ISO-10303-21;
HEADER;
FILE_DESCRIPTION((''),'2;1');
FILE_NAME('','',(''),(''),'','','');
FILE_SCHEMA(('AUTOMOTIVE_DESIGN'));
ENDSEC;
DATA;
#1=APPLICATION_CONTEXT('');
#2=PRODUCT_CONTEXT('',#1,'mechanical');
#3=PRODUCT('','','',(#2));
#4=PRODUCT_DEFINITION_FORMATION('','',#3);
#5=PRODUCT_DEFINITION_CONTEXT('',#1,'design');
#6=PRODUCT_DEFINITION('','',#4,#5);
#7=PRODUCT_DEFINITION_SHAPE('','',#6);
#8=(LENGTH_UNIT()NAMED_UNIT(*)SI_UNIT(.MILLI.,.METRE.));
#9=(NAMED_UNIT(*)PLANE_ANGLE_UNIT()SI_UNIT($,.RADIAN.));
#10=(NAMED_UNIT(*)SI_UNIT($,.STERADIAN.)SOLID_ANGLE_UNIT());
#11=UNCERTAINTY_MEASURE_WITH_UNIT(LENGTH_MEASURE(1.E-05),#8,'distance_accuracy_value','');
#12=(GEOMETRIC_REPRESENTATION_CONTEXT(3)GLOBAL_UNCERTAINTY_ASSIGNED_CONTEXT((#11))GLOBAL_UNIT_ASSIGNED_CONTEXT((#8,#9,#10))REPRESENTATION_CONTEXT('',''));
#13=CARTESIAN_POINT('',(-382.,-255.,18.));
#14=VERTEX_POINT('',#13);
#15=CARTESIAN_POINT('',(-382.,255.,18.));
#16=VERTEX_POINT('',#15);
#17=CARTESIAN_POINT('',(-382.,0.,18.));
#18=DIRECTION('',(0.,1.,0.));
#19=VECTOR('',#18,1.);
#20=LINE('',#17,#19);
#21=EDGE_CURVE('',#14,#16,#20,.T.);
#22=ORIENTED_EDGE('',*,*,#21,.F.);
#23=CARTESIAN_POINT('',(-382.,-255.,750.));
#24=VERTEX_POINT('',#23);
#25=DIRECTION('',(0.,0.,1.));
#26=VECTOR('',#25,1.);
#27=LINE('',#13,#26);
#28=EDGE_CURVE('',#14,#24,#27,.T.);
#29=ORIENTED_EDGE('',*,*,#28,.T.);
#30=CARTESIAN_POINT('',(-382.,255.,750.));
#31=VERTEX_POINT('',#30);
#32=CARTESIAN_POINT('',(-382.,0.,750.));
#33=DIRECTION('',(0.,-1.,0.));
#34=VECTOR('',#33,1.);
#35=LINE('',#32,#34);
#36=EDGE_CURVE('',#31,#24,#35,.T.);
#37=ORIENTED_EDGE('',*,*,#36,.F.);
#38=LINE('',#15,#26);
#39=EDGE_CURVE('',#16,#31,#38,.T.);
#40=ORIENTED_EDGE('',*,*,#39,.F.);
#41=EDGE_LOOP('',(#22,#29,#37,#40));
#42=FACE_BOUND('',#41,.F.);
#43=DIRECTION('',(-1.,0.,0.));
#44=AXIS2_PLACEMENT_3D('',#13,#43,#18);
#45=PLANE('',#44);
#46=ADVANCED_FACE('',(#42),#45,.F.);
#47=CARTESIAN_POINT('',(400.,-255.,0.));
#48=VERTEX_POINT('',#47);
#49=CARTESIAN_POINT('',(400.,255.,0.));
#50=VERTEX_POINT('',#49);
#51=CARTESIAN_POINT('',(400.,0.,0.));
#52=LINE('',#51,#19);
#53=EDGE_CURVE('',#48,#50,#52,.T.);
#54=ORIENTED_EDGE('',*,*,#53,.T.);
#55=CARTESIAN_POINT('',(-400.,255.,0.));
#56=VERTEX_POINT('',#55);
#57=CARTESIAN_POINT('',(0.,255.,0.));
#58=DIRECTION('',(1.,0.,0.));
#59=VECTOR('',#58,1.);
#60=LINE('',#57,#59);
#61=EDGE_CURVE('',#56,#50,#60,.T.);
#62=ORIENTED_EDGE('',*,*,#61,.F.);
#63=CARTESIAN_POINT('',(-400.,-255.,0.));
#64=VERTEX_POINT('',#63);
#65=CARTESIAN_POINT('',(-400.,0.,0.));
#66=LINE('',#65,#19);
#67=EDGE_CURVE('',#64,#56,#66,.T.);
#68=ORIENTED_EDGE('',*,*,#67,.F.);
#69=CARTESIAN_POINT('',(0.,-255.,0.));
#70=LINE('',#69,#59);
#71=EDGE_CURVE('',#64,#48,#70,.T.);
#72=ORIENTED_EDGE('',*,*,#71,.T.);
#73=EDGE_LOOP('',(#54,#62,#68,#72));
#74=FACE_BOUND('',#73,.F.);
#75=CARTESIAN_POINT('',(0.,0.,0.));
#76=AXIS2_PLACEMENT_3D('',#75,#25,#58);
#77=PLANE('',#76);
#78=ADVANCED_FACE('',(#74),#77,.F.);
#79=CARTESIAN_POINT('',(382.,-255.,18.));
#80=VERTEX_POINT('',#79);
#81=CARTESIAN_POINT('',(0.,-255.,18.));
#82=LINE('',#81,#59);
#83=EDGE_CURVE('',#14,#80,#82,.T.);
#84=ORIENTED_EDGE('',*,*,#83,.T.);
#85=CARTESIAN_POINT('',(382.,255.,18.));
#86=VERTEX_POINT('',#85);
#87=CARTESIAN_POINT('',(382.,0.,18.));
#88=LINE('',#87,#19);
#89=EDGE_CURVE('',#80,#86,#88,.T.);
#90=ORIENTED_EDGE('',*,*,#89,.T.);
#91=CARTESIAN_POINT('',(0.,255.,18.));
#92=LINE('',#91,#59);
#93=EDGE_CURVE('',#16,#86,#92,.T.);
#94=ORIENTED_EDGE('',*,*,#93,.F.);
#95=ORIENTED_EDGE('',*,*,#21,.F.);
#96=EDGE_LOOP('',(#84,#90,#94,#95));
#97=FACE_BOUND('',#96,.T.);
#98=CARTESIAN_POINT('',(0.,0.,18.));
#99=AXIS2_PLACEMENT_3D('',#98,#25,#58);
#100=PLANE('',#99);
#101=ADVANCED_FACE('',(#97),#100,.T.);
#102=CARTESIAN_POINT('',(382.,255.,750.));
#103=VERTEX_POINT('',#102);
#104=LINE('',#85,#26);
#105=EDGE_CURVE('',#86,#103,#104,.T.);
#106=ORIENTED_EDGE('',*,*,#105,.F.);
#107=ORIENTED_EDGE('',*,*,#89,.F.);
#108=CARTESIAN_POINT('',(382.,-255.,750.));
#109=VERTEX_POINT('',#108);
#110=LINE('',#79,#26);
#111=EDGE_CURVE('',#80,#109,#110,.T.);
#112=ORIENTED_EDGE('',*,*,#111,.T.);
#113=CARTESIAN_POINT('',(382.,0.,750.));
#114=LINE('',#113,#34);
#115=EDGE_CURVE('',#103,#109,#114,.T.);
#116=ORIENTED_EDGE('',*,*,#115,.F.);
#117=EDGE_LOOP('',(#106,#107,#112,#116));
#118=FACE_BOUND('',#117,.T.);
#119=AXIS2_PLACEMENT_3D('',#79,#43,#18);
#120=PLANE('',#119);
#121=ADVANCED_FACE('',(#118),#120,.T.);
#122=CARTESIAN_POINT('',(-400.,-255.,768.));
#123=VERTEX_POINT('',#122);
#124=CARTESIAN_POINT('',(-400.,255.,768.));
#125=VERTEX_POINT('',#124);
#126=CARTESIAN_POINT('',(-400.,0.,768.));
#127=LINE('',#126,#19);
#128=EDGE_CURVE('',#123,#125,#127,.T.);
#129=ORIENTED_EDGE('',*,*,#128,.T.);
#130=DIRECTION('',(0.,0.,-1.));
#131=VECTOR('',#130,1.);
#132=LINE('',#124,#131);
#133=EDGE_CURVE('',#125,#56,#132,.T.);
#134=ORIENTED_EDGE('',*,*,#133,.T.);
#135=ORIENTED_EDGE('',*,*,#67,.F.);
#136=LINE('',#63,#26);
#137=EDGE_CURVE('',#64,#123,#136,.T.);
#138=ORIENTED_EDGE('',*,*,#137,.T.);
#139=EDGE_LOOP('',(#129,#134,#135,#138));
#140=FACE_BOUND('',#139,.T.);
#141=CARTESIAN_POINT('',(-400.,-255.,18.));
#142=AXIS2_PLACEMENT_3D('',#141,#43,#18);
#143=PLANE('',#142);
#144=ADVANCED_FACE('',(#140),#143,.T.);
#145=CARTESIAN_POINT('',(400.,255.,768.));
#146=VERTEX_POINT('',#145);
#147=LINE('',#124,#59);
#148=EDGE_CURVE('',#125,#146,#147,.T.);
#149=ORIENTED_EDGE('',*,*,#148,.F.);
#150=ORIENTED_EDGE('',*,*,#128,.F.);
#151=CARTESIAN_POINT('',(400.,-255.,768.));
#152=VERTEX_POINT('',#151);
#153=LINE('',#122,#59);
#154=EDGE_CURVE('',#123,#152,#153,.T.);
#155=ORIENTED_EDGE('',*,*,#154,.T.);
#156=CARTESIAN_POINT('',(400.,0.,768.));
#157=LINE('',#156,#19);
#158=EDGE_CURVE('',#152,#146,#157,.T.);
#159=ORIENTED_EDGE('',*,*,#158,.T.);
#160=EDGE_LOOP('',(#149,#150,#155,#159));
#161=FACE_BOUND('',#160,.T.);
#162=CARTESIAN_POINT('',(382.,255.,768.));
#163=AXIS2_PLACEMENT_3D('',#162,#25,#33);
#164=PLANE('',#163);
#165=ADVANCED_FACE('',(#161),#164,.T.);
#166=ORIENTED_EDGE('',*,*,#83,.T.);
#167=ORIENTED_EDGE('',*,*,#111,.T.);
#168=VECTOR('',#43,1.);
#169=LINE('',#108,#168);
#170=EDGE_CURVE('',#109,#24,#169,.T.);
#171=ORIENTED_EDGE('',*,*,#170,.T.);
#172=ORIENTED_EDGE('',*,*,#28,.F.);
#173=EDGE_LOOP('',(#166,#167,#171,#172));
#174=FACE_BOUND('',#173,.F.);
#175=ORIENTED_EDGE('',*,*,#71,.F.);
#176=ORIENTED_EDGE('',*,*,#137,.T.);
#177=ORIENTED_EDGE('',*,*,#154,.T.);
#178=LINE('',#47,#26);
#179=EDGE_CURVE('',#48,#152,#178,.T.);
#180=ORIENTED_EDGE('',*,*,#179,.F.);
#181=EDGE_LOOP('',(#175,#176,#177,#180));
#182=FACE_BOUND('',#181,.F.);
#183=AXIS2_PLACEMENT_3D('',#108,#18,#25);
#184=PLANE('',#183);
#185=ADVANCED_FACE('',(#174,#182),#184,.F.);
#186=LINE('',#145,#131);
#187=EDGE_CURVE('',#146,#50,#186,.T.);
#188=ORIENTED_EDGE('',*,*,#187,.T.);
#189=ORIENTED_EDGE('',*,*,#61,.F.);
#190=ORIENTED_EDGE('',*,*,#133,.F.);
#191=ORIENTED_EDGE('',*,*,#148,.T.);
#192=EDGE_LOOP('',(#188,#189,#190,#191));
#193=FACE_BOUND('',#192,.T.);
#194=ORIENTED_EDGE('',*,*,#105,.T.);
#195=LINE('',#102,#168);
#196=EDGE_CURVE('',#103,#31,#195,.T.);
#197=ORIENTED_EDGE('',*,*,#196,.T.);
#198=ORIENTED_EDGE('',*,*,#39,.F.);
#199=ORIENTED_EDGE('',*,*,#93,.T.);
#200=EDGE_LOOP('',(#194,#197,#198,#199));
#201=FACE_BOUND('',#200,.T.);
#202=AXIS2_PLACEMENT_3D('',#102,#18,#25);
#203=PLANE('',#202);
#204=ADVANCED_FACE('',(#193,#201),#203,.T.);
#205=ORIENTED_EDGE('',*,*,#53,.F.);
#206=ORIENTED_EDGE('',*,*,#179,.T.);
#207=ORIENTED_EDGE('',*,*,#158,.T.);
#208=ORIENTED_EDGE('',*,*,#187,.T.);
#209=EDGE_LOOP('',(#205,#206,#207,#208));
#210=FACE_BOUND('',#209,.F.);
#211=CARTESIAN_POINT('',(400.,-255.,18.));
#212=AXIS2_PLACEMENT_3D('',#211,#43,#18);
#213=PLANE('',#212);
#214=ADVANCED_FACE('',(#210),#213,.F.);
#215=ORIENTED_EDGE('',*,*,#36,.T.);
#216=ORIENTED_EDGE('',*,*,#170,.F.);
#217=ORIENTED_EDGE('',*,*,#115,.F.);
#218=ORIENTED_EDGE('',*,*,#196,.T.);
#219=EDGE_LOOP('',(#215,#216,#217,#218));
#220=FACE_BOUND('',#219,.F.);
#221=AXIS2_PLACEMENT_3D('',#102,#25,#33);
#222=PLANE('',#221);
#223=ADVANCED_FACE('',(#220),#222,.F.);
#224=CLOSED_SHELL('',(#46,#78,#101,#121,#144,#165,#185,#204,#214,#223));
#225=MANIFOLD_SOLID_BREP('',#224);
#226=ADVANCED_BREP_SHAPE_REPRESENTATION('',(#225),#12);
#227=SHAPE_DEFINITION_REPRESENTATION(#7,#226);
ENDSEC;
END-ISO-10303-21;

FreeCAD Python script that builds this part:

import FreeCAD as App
import Part
import Sketcher
from FreeCAD import Vector

doc = App.newDocument("Part")
body = doc.addObject("PartDesign::Body", "Body")

# Sketch on XY plane
sketch1 = body.newObject("Sketcher::SketchObject", "Sketch")
sketch1.AttachmentSupport = (doc.getObject("XY_Plane"), [""])
sketch1.MapMode = "FlatFace"
sketch1.addGeometry(Part.LineSegment(Vector(-400, 255, 0), Vector(-400, -255, 0)), False)
sketch1.addGeometry(Part.LineSegment(Vector(-400, -255, 0), Vector(400, -255, 0)), False)
sketch1.addGeometry(Part.LineSegment(Vector(400, -255, 0), Vector(400, 255, 0)), False)
sketch1.addGeometry(Part.LineSegment(Vector(400, 255, 0), Vector(-400, 255, 0)), False)
sketch1.addConstraint(Sketcher.Constraint("Coincident", 0, 2, 1, 1))
sketch1.addConstraint(Sketcher.Constraint("Coincident", 1, 2, 2, 1))
sketch1.addConstraint(Sketcher.Constraint("Coincident", 2, 2, 3, 1))
sketch1.addConstraint(Sketcher.Constraint("Coincident", 3, 2, 0, 1))
sketch1.addConstraint(Sketcher.Constraint("Vertical", 0))
sketch1.addConstraint(Sketcher.Constraint("Horizontal", 1))
sketch1.addConstraint(Sketcher.Constraint("Vertical", 2))
sketch1.addConstraint(Sketcher.Constraint("Horizontal", 3))
sketch1.addConstraint(Sketcher.Constraint("Symmetric", 0, 2, 2, 2, -1, 1))
sketch1.addConstraint(Sketcher.Constraint("DistanceX", 1, 1, 1, 2, 800.0))
sketch1.addConstraint(Sketcher.Constraint("DistanceY", 0, 2, 0, 1, 510.0))
pad1 = body.newObject("PartDesign::Pad", "Pad")
pad1.Profile = sketch1
pad1.Length = 18

# Sketch on XY plane
sketch2 = body.newObject("Sketcher::SketchObject", "Sketch001")
sketch2.AttachmentSupport = (doc.getObject("XY_Plane"), [""])
sketch2.MapMode = "FlatFace"
sketch2.AttachmentOffset = App.Placement(Vector(0, 0, 18), App.Rotation())
sketch2.addGeometry(Part.LineSegment(Vector(-400, 255, 0), Vector(-400, -255, 0)), False)
sketch2.addGeometry(Part.LineSegment(Vector(-400, -255, 0), Vector(-382, -255, 0)), False)
sketch2.addGeometry(Part.LineSegment(Vector(-382, -255, 0), Vector(-382, 255, 0)), False)
sketch2.addGeometry(Part.LineSegment(Vector(-382, 255, 0), Vector(-400, 255, 0)), False)
sketch2.addConstraint(Sketcher.Constraint("Coincident", 0, 2, 1, 1))
sketch2.addConstraint(Sketcher.Constraint("Coincident", 1, 2, 2, 1))
sketch2.addConstraint(Sketcher.Constraint("Coincident", 2, 2, 3, 1))
sketch2.addConstraint(Sketcher.Constraint("Coincident", 3, 2, 0, 1))
sketch2.addConstraint(Sketcher.Constraint("Vertical", 0))
sketch2.addConstraint(Sketcher.Constraint("Horizontal", 1))
sketch2.addConstraint(Sketcher.Constraint("Vertical", 2))
sketch2.addConstraint(Sketcher.Constraint("Horizontal", 3))
sketch2.addConstraint(Sketcher.Constraint("DistanceX", 1, 1, 1, 2, 18.0))
sketch2.addConstraint(Sketcher.Constraint("DistanceY", 0, 2, 0, 1, 510.0))
sketch2.addConstraint(Sketcher.Constraint("DistanceX", 0, 2, -1, 1, 400.0))
sketch2.addConstraint(Sketcher.Constraint("DistanceY", 0, 2, -1, 1, 255.0))
pad2 = body.newObject("PartDesign::Pad", "Pad001")
pad2.Profile = sketch2
pad2.Length = 750

# Sketch on XY plane
sketch3 = body.newObject("Sketcher::SketchObject", "Sketch002")
sketch3.AttachmentSupport = (doc.getObject("XY_Plane"), [""])
sketch3.MapMode = "FlatFace"
sketch3.AttachmentOffset = App.Placement(Vector(0, 0, 18), App.Rotation())
sketch3.addGeometry(Part.LineSegment(Vector(382, 255, 0), Vector(382, -255, 0)), False)
sketch3.addGeometry(Part.LineSegment(Vector(382, -255, 0), Vector(400, -255, 0)), False)
sketch3.addGeometry(Part.LineSegment(Vector(400, -255, 0), Vector(400, 255, 0)), False)
sketch3.addGeometry(Part.LineSegment(Vector(400, 255, 0), Vector(382, 255, 0)), False)
sketch3.addConstraint(Sketcher.Constraint("Coincident", 0, 2, 1, 1))
sketch3.addConstraint(Sketcher.Constraint("Coincident", 1, 2, 2, 1))
sketch3.addConstraint(Sketcher.Constraint("Coincident", 2, 2, 3, 1))
sketch3.addConstraint(Sketcher.Constraint("Coincident", 3, 2, 0, 1))
sketch3.addConstraint(Sketcher.Constraint("Vertical", 0))
sketch3.addConstraint(Sketcher.Constraint("Horizontal", 1))
sketch3.addConstraint(Sketcher.Constraint("Vertical", 2))
sketch3.addConstraint(Sketcher.Constraint("Horizontal", 3))
sketch3.addConstraint(Sketcher.Constraint("DistanceX", 1, 1, 1, 2, 18.0))
sketch3.addConstraint(Sketcher.Constraint("DistanceY", 0, 2, 0, 1, 510.0))
sketch3.addConstraint(Sketcher.Constraint("DistanceX", -1, 1, 0, 2, 382.0))
sketch3.addConstraint(Sketcher.Constraint("DistanceY", 0, 2, -1, 1, 255.0))
pad3 = body.newObject("PartDesign::Pad", "Pad002")
pad3.Profile = sketch3
pad3.Length = 750

# Sketch on YZ plane
sketch4 = body.newObject("Sketcher::SketchObject", "Sketch003")
sketch4.AttachmentSupport = (doc.getObject("YZ_Plane"), [""])
sketch4.MapMode = "FlatFace"
sketch4.AttachmentOffset = App.Placement(Vector(0, 0, 382), App.Rotation())
sketch4.addGeometry(Part.LineSegment(Vector(255, 768, 0), Vector(255, 750, 0)), False)
sketch4.addGeometry(Part.LineSegment(Vector(255, 750, 0), Vector(-255, 750, 0)), False)
sketch4.addGeometry(Part.LineSegment(Vector(-255, 750, 0), Vector(-255, 768, 0)), False)
sketch4.addGeometry(Part.LineSegment(Vector(-255, 768, 0), Vector(255, 768, 0)), False)
sketch4.addConstraint(Sketcher.Constraint("Coincident", 0, 2, 1, 1))
sketch4.addConstraint(Sketcher.Constraint("Coincident", 1, 2, 2, 1))
sketch4.addConstraint(Sketcher.Constraint("Coincident", 2, 2, 3, 1))
sketch4.addConstraint(Sketcher.Constraint("Coincident", 3, 2, 0, 1))
sketch4.addConstraint(Sketcher.Constraint("Vertical", 0))
sketch4.addConstraint(Sketcher.Constraint("Horizontal", 1))
sketch4.addConstraint(Sketcher.Constraint("Vertical", 2))
sketch4.addConstraint(Sketcher.Constraint("Horizontal", 3))
sketch4.addConstraint(Sketcher.Constraint("DistanceX", 1, 2, 1, 1, 510.0))
sketch4.addConstraint(Sketcher.Constraint("DistanceY", 0, 2, 0, 1, 18.0))
sketch4.addConstraint(Sketcher.Constraint("DistanceX", -1, 1, 0, 2, 255.0))
sketch4.addConstraint(Sketcher.Constraint("DistanceY", -1, 1, 0, 2, 750.0))
pad4 = body.newObject("PartDesign::Pad", "Pad003")
pad4.Profile = sketch4
pad4.Length = 764
pad4.Reversed = True

doc.recompute()
